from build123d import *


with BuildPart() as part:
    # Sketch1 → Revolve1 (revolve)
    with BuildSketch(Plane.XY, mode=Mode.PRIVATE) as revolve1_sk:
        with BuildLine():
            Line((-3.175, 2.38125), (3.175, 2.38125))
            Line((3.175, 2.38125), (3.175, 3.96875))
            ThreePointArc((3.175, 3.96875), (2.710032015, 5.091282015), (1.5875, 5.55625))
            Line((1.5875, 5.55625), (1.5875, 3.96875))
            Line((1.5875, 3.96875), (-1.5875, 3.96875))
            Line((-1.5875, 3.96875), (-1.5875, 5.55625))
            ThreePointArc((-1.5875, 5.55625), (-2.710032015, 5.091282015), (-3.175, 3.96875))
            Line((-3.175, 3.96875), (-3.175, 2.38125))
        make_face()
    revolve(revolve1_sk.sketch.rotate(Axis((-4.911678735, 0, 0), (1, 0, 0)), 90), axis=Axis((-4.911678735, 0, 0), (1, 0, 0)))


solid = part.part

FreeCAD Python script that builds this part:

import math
import FreeCAD as App
import Part
import Sketcher

V = App.Vector
Q = App.Units.Quantity

doc = App.newDocument("Part")
body = doc.addObject("PartDesign::Body", "Body")

# Sketch on XY plane
sketch1 = doc.addObject("Sketcher::SketchObject", "Sketch")
body.addObject(sketch1)
sketch1.AttachmentSupport = (doc.XY_Plane, [""])
sketch1.MapMode = "FlatFace"
sketch1.addGeometry([
    Part.LineSegment(V(-3.175, 2.38125, 0), V(3.175, 2.38125, 0)),  # 0
    Part.LineSegment(V(3.175, 2.38125, 0), V(3.175, 3.96875, 0)),  # 1
    Part.ArcOfCircle(Part.Circle(V(1.5875, 3.96875, 0), V(0, 0, 1), 1.5875), math.radians(0), math.radians(90)),  # 2
    Part.LineSegment(V(1.5875, 5.55625, 0), V(1.5875, 3.96875, 0)),  # 3
    Part.LineSegment(V(1.5875, 3.96875, 0), V(-1.5875, 3.96875, 0)),  # 4
    Part.LineSegment(V(-1.5875, 3.96875, 0), V(-1.5875, 5.55625, 0)),  # 5
    Part.ArcOfCircle(Part.Circle(V(-1.5875, 3.96875, 0), V(0, 0, 1), 1.5875), math.radians(90), math.radians(180)),  # 6
    Part.LineSegment(V(-3.175, 3.96875, 0), V(-3.175, 2.38125, 0)),  # 7
], False)
sketch1.addConstraint([
    Sketcher.Constraint("Coincident", 0, 2, 1, 1),
    Sketcher.Constraint("Tangent", 1, 2, 2, 1),
    Sketcher.Constraint("Coincident", 2, 2, 3, 1),
    Sketcher.Constraint("Coincident", 3, 2, 4, 1),
    Sketcher.Constraint("Coincident", 4, 2, 5, 1),
    Sketcher.Constraint("Coincident", 5, 2, 6, 1),
    Sketcher.Constraint("Tangent", 6, 2, 7, 1),
    Sketcher.Constraint("Coincident", 7, 2, 0, 1),
    Sketcher.Constraint("Horizontal", 0),
    Sketcher.Constraint("Vertical", 1),
    Sketcher.Constraint("Vertical", 3),
    Sketcher.Constraint("Horizontal", 4),
    Sketcher.Constraint("Vertical", 5),
    Sketcher.Constraint("Vertical", 7),
    Sketcher.Constraint("Coincident", 3, 2, 2, 3),
    Sketcher.Constraint("Coincident", 4, 2, 6, 3),
    Sketcher.Constraint("Equal", 2, 6),
    Sketcher.Constraint("Equal", 1, 3),
    Sketcher.Constraint("Radius", 2, Q("0.0625 in")),
    Sketcher.Constraint("DistanceX", 0, 1, 0, 2, Q("0.25 in")),
    Sketcher.Constraint("DistanceX", -1, 1, 2, 3, Q("0.0625 in")),
    Sketcher.Constraint("DistanceY", -1, 1, 2, 3, Q("0.15625 in")),
])
revolution = doc.addObject("PartDesign::Revolution", "Revolution")
body.addObject(revolution)
revolution.Profile = sketch1
revolution.ReferenceAxis = (sketch1, ["H_Axis"])
revolution.Angle = 360

doc.recompute()
